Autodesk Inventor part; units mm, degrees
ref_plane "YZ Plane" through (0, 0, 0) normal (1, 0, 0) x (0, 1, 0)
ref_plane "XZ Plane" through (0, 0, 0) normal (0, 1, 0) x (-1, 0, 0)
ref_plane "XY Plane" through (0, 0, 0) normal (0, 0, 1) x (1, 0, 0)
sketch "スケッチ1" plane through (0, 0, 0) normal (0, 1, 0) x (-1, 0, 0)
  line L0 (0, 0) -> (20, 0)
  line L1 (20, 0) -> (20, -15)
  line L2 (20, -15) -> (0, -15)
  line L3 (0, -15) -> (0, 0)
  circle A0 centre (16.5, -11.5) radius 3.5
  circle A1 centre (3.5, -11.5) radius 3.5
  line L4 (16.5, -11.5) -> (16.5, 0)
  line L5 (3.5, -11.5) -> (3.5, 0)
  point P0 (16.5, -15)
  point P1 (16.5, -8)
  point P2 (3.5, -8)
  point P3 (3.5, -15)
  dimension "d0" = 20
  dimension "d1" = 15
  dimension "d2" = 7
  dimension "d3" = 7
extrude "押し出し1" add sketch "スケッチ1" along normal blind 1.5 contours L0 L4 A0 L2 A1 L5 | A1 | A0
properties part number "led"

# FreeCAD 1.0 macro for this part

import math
import FreeCAD as App
import Part
import Sketcher

doc = App.newDocument("Part")
params = doc.addObject("Spreadsheet::Sheet", "Params")
for row, (alias, value) in enumerate([
    ("sketch1_radius", "3.5 mm"),
    ("sketch1_width", "13 mm"),
    ("pad1_length", "1.5 mm"),
], start=1):
    params.set(f"A{row}", alias)
    params.set(f"B{row}", "=" + value)
    params.setAlias(f"B{row}", alias)

body = doc.addObject("PartDesign::Body", "Body")

# Sketch on XZ plane
sketch1 = body.newObject("Sketcher::SketchObject", "Sketch")
sketch1.AttachmentSupport = (doc.getObject("XZ_Plane"), [""])
sketch1.MapMode = "FlatFace"
sketch1.addGeometry(Part.LineSegment(App.Vector(-16.5, 0, 0), App.Vector(-3.5, 0, 0)), False)
sketch1.addGeometry(Part.LineSegment(App.Vector(-3.5, 0, 0), App.Vector(-3.5, -8, 0)), False)
sketch1.addGeometry(Part.ArcOfCircle(Part.Circle(App.Vector(-3.5, -11.5, 0), App.Vector(0, 0, 1), 3.5), math.radians(-90), math.radians(90)), False)
sketch1.addGeometry(Part.LineSegment(App.Vector(-3.5, -15, 0), App.Vector(-16.5, -15, 0)), False)
sketch1.addGeometry(Part.ArcOfCircle(Part.Circle(App.Vector(-16.5, -11.5, 0), App.Vector(0, 0, 1), 3.5), math.radians(90), math.radians(270)), False)
sketch1.addGeometry(Part.LineSegment(App.Vector(-16.5, -8, 0), App.Vector(-16.5, 0, 0)), False)
sketch1.addConstraint(Sketcher.Constraint("Coincident", 0, 2, 1, 1))
sketch1.addConstraint(Sketcher.Constraint("Coincident", 1, 2, 2, 2))
sketch1.addConstraint(Sketcher.Constraint("Tangent", 2, 1, 3, 1))
sketch1.addConstraint(Sketcher.Constraint("Tangent", 3, 2, 4, 2))
sketch1.addConstraint(Sketcher.Constraint("Coincident", 4, 1, 5, 1))
sketch1.addConstraint(Sketcher.Constraint("Coincident", 5, 2, 0, 1))
sketch1.addConstraint(Sketcher.Constraint("Horizontal", 0))
sketch1.addConstraint(Sketcher.Constraint("Vertical", 1))
sketch1.addConstraint(Sketcher.Constraint("Horizontal", 3))
sketch1.addConstraint(Sketcher.Constraint("Vertical", 5))
sketch1.addConstraint(Sketcher.Constraint("Equal", 2, 4))
sketch1.addConstraint(Sketcher.Constraint("PointOnObject", 0, 2, -1))
sketch1.addConstraint(Sketcher.Constraint("Vertical", 2, 3, 0, 2))
sketch1.addConstraint(Sketcher.Constraint("Vertical", 3, 2, 4, 1))
sketch1.addConstraint(Sketcher.Constraint("Radius", 2, 3.5))
sketch1.addConstraint(Sketcher.Constraint("DistanceY", 2, 1, -1, 1, 15.0))
sketch1.addConstraint(Sketcher.Constraint("DistanceX", 0, 1, 0, 2, 13.0))
sketch1.addConstraint(Sketcher.Constraint("DistanceX", 2, 3, -1, 1, 3.5))
sketch1.setExpression("Constraints[14]", "Params.sketch1_radius")
sketch1.setExpression("Constraints[16]", "Params.sketch1_width")
pad1 = body.newObject("PartDesign::Pad", "Pad")
pad1.Profile = sketch1
pad1.setExpression("Length", "Params.pad1_length")
pad1.Reversed = True

doc.recompute()
